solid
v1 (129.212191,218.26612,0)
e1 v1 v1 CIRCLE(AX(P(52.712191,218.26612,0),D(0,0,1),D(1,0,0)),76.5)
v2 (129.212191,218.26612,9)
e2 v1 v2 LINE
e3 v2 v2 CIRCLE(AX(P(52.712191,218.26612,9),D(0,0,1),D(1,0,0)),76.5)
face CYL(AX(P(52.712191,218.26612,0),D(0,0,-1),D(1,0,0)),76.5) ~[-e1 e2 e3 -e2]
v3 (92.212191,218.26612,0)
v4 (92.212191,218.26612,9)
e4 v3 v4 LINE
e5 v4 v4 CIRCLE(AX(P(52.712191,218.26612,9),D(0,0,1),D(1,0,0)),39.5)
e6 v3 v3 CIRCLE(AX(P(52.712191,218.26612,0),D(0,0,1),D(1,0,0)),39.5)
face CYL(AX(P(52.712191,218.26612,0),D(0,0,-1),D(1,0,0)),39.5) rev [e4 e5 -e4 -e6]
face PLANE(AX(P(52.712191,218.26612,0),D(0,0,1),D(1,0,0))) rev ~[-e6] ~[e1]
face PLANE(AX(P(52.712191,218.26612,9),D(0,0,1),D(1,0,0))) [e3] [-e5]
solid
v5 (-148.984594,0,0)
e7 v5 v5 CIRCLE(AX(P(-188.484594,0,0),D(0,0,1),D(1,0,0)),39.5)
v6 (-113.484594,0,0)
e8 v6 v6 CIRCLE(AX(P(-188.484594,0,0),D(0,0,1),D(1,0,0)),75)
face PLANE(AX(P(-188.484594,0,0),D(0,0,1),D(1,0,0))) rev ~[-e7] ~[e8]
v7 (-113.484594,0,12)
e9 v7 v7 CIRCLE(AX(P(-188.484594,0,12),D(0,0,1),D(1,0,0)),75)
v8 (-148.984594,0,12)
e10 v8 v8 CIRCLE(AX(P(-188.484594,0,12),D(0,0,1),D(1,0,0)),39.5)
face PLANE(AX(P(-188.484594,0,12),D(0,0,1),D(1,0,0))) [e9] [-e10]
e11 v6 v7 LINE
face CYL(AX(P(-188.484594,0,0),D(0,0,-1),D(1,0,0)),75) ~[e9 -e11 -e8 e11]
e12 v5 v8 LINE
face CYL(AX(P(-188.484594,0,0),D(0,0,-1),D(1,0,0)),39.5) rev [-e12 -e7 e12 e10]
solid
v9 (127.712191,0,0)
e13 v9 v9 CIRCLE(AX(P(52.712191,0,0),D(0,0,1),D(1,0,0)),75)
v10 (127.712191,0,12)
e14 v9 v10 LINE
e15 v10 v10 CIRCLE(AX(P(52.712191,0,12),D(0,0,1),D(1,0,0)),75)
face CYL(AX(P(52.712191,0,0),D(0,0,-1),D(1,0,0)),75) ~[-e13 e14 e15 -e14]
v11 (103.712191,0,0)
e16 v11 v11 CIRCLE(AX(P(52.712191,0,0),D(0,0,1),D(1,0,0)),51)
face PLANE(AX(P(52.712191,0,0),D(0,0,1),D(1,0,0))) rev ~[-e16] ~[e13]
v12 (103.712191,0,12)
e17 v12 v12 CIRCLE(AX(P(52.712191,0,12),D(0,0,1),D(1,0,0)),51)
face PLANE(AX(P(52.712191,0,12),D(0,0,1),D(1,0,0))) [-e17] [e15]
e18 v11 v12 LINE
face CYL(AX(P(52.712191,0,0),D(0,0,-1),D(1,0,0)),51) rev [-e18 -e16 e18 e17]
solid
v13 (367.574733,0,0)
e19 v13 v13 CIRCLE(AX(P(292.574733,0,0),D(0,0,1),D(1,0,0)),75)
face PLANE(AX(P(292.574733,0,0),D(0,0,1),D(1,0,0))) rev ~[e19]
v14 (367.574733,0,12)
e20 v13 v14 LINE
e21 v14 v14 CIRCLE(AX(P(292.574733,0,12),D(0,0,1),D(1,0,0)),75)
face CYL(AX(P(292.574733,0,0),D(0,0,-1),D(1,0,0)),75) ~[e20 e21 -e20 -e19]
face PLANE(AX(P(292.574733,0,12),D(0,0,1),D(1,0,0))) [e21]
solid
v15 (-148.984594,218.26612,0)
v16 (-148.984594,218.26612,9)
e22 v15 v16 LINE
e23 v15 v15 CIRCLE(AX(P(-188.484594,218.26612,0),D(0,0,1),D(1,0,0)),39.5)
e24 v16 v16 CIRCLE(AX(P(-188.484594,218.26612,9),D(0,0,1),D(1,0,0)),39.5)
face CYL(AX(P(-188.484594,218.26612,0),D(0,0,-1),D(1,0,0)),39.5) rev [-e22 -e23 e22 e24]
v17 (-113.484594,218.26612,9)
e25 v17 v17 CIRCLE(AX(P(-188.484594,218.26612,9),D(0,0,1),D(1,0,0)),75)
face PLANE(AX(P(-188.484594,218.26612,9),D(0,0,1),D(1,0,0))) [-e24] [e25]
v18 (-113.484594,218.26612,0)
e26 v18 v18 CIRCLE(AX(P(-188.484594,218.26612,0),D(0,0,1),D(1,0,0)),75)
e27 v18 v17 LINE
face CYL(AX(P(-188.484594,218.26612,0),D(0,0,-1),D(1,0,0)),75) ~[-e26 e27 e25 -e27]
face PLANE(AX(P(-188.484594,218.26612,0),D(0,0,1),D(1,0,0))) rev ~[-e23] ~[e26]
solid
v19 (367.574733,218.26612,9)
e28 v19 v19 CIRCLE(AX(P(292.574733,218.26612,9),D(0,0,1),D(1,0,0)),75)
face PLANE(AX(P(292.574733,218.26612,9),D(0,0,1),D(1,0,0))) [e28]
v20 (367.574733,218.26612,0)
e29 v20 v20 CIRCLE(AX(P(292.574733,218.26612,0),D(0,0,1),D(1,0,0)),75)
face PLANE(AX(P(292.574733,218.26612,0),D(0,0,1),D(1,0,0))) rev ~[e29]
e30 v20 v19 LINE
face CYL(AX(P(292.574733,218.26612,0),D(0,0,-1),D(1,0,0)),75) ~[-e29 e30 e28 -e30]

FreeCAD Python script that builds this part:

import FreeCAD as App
import Part
import Sketcher
from FreeCAD import Vector
Q = App.Units.Quantity

doc = App.newDocument("Part")
body = doc.addObject("PartDesign::Body", "Body")

# Sketch on XY plane
sketch1 = doc.addObject("Sketcher::SketchObject", "Sketch")
body.addObject(sketch1)
sketch1.AttachmentSupport = (doc.XY_Plane, [""])
sketch1.MapMode = "FlatFace"
sketch1.addGeometry([
    Part.Circle(Vector(-188, 0, 0), Vector(0, 0, 1), 75),
    Part.Circle(Vector(-188, 0, 0), Vector(0, 0, 1), 40),
], False)
sketch1.addConstraint([
    Sketcher.Constraint("Coincident", 1, 3, 0, 3),
    Sketcher.Constraint("PointOnObject", 0, 3, -1),
    Sketcher.Constraint("Diameter", 0, Q("150 mm")),
    Sketcher.Constraint("Diameter", 1, Q("79 mm")),
    Sketcher.Constraint("DistanceX", 0, 3, -1, 1, Q("188.484594 mm")),
])
pad1 = doc.addObject("PartDesign::Pad", "Pad")
body.addObject(pad1)
pad1.Profile = sketch1
pad1.Length = 12
body2 = doc.addObject("PartDesign::Body", "Body001")

# Sketch on XY plane
sketch2 = doc.addObject("Sketcher::SketchObject", "Sketch001")
body2.addObject(sketch2)
sketch2.AttachmentSupport = (doc.getObject("XY_Plane001"), [""])
sketch2.MapMode = "FlatFace"
sketch2.addGeometry([
    Part.Circle(Vector(53, 0, 0), Vector(0, 0, 1), 75),
    Part.Circle(Vector(53, 0, 0), Vector(0, 0, 1), 51),
], False)
sketch2.addConstraint([
    Sketcher.Constraint("Coincident", 1, 3, 0, 3),
    Sketcher.Constraint("PointOnObject", 0, 3, -1),
    Sketcher.Constraint("Diameter", 0, Q("150 mm")),
    Sketcher.Constraint("Diameter", 1, Q("102 mm")),
    Sketcher.Constraint("DistanceX", -1, 1, 0, 3, Q("52.712191 mm")),
])
pad2 = doc.addObject("PartDesign::Pad", "Pad001")
body2.addObject(pad2)
pad2.Profile = sketch2
pad2.Length = 12
body3 = doc.addObject("PartDesign::Body", "Body002")

# Sketch on XY plane
sketch3 = doc.addObject("Sketcher::SketchObject", "Sketch002")
body3.addObject(sketch3)
sketch3.AttachmentSupport = (doc.getObject("XY_Plane002"), [""])
sketch3.MapMode = "FlatFace"
sketch3.addGeometry([
    Part.Circle(Vector(-188, 218, 0), Vector(0, 0, 1), 75),
    Part.Circle(Vector(-188, 218, 0), Vector(0, 0, 1), 40),
], False)
sketch3.addConstraint([
    Sketcher.Constraint("Coincident", 1, 3, 0, 3),
    Sketcher.Constraint("Diameter", 0, Q("150 mm")),
    Sketcher.Constraint("Diameter", 1, Q("79 mm")),
    Sketcher.Constraint("DistanceY", -1, 1, 0, 3, Q("218.26612 mm")),
    Sketcher.Constraint("DistanceX", 0, 3, -1, 1, Q("188.484594 mm")),
])
pad3 = doc.addObject("PartDesign::Pad", "Pad002")
body3.addObject(pad3)
pad3.Profile = sketch3
pad3.Length = 9
body4 = doc.addObject("PartDesign::Body", "Body003")

# Sketch on XY plane
sketch4 = doc.addObject("Sketcher::SketchObject", "Sketch003")
body4.addObject(sketch4)
sketch4.AttachmentSupport = (doc.getObject("XY_Plane003"), [""])
sketch4.MapMode = "FlatFace"
sketch4.addGeometry(Part.Circle(Vector(293, 0, 0), Vector(0, 0, 1), 75), False)
sketch4.addConstraint([
    Sketcher.Constraint("PointOnObject", 0, 3, -1),
    Sketcher.Constraint("Diameter", 0, Q("150 mm")),
    Sketcher.Constraint("DistanceX", -1, 1, 0, 3, Q("292.574733 mm")),
])
pad4 = doc.addObject("PartDesign::Pad", "Pad003")
body4.addObject(pad4)
pad4.Profile = sketch4
pad4.Length = 12
body5 = doc.addObject("PartDesign::Body", "Body004")

# Sketch on XY plane
sketch5 = doc.addObject("Sketcher::SketchObject", "Sketch004")
body5.addObject(sketch5)
sketch5.AttachmentSupport = (doc.getObject("XY_Plane004"), [""])
sketch5.MapMode = "FlatFace"
sketch5.addGeometry([
    Part.Circle(Vector(53, 218, 0), Vector(0, 0, 1), 76),
    Part.Circle(Vector(53, 218, 0), Vector(0, 0, 1), 40),
], False)
sketch5.addConstraint([
    Sketcher.Constraint("Coincident", 1, 3, 0, 3),
    Sketcher.Constraint("Diameter", 0, Q("153 mm")),
    Sketcher.Constraint("Diameter", 1, Q("79 mm")),
    Sketcher.Constraint("DistanceX", -1, 1, 0, 3, Q("52.712191 mm")),
    Sketcher.Constraint("DistanceY", -1, 1, 0, 3, Q("218.26612 mm")),
])
pad5 = doc.addObject("PartDesign::Pad", "Pad004")
body5.addObject(pad5)
pad5.Profile = sketch5
pad5.Length = 9
body6 = doc.addObject("PartDesign::Body", "Body005")

# Sketch on XY plane
sketch6 = doc.addObject("Sketcher::SketchObject", "Sketch005")
body6.addObject(sketch6)
sketch6.AttachmentSupport = (doc.getObject("XY_Plane005"), [""])
sketch6.MapMode = "FlatFace"
sketch6.addGeometry(Part.Circle(Vector(293, 218, 0), Vector(0, 0, 1), 75), False)
sketch6.addConstraint([
    Sketcher.Constraint("Diameter", 0, Q("150 mm")),
    Sketcher.Constraint("DistanceY", -1, 1, 0, 3, Q("218.26612 mm")),
    Sketcher.Constraint("DistanceX", -1, 1, 0, 3, Q("292.574733 mm")),
])
pad6 = doc.addObject("PartDesign::Pad", "Pad005")
body6.addObject(pad6)
pad6.Profile = sketch6
pad6.Length = 9

doc.recompute()
